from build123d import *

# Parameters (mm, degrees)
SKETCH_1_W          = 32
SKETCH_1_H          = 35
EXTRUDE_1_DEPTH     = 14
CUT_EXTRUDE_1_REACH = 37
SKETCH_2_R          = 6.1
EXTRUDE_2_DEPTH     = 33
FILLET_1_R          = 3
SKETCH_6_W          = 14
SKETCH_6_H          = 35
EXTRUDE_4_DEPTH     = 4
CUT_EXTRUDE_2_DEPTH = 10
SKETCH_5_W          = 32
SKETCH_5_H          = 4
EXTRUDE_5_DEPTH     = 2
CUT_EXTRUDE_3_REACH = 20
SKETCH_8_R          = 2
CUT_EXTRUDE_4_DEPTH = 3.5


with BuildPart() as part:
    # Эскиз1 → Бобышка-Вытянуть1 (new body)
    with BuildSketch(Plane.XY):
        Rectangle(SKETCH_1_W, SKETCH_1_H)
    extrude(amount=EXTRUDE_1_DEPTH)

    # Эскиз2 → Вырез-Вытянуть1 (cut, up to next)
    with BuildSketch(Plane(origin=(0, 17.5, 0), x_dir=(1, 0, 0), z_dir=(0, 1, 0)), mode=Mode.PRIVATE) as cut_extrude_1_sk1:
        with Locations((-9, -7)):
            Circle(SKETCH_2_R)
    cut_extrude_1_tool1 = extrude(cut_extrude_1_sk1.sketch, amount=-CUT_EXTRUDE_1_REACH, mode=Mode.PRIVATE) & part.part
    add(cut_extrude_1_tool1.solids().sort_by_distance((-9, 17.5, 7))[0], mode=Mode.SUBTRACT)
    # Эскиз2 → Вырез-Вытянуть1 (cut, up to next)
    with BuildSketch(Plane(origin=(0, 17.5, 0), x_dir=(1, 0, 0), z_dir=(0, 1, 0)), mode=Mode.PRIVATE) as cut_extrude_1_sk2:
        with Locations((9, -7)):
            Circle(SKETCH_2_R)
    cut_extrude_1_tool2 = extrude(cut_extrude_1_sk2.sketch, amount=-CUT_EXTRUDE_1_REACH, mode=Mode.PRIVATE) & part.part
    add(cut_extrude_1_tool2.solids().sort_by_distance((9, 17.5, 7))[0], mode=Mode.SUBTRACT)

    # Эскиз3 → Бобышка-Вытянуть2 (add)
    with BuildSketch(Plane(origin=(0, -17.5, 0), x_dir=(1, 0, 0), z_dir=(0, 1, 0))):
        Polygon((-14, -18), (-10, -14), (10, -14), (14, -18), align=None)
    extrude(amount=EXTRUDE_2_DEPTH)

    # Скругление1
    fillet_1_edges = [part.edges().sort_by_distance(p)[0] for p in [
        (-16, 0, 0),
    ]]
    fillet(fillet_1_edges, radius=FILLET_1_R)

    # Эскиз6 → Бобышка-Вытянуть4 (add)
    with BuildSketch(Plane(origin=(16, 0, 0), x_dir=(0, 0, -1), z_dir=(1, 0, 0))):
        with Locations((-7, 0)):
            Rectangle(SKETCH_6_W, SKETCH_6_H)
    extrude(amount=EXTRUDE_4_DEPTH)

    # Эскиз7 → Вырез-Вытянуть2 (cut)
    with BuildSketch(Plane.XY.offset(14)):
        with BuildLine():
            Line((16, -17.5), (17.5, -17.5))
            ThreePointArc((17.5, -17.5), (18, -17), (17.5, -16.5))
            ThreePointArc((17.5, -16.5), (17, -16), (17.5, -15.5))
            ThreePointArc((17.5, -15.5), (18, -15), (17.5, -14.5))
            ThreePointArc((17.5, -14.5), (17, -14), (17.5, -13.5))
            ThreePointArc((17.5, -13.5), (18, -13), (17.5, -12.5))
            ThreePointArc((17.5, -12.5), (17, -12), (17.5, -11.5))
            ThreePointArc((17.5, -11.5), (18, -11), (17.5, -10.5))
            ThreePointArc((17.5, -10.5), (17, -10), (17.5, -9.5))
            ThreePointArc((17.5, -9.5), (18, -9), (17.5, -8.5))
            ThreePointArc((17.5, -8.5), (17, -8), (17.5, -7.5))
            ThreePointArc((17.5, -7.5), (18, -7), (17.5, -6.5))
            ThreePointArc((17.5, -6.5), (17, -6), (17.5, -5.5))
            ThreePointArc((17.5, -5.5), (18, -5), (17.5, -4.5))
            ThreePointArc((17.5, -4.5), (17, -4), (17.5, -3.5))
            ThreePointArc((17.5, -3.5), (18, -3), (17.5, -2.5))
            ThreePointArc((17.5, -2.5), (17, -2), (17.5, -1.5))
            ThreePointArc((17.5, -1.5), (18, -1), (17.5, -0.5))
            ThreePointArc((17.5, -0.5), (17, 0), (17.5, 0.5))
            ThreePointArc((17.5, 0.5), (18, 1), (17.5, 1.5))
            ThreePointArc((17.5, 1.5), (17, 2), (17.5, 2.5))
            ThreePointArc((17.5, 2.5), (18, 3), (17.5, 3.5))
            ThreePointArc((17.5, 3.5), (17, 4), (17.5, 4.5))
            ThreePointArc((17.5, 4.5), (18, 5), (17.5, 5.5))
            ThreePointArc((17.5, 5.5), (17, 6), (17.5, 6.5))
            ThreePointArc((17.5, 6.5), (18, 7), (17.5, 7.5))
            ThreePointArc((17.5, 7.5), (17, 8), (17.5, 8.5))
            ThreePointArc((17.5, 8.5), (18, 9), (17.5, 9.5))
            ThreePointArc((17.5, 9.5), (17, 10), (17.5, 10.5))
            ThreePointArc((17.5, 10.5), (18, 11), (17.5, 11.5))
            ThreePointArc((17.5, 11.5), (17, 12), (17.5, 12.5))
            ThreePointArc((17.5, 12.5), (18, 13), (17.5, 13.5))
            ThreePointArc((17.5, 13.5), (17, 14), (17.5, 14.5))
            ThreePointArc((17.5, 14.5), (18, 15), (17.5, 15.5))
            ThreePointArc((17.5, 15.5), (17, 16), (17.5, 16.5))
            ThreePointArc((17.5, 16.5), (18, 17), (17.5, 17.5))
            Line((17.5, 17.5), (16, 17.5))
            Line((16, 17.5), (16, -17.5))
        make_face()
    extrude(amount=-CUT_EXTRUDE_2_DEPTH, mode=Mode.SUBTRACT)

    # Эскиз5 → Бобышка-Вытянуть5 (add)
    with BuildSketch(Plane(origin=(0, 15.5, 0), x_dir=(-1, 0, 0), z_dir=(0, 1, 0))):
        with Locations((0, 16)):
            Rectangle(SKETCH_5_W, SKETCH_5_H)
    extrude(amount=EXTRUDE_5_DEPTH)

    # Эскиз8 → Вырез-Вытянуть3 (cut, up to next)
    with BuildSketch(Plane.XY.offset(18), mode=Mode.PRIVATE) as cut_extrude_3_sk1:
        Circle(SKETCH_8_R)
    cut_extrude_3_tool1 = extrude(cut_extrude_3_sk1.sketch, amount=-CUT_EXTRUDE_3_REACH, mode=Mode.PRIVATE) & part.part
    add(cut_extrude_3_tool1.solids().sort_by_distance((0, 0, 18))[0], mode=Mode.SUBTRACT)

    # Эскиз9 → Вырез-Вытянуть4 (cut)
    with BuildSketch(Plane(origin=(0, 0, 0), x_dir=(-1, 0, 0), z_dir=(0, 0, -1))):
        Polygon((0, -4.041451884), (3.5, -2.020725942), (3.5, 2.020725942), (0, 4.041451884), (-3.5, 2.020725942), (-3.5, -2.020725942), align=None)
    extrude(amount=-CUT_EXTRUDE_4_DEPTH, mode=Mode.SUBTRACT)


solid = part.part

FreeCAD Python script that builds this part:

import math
import FreeCAD as App
import Part
import Sketcher

V = App.Vector
Q = App.Units.Quantity


def edges_at(feature, points):
    """Names of the edges that pass closest to the given points."""
    edges = feature.Shape.Edges
    near = lambda p: min(range(len(edges)), key=lambda i: edges[i].distToShape(Part.Vertex(*p))[0])
    return sorted({f"Edge{near(p) + 1}" for p in points})

doc = App.newDocument("Part")
params = doc.addObject("Spreadsheet::Sheet", "Params")
for row, (alias, value) in enumerate([
    ("sketch1_width", "32 mm"),
    ("sketch1_height", "35 mm"),
    ("pad1_length", "14 mm"),
    ("sketch2_diameter", "12.2 mm"),
    ("sketch3_diameter", "12.2 mm"),
    ("sketch4_width", "28 mm"),
    ("sketch4_width2", "20 mm"),
    ("pad2_length", "33 mm"),
    ("fillet_radius", "3 mm"),
    ("sketch5_width", "35 mm"),
    ("sketch5_height", "14 mm"),
    ("pad3_length", "4 mm"),
    ("sketch6_radius", "0.5 mm"),
    ("sketch6_width", "1.5 mm"),
    ("pocket3_length", "10 mm"),
    ("sketch7_width", "32 mm"),
    ("sketch7_height", "4 mm"),
    ("pad4_length", "2 mm"),
    ("sketch8_diameter", "4 mm"),
    ("pocket5_length", "3.5 mm"),
], start=1):
    params.set(f"A{row}", alias)
    params.set(f"B{row}", "=" + value)
    params.setAlias(f"B{row}", alias)

body = doc.addObject("PartDesign::Body", "Body")

sketch1 = body.newObject("Sketcher::SketchObject", "Sketch")
sketch1.AttachmentSupport = (doc.getObject("XY_Plane"), [""])
sketch1.MapMode = "FlatFace"
sketch1.addGeometry([
    Part.LineSegment(V(-16, 18, 0), V(-16, -18, 0)),
    Part.LineSegment(V(-16, -18, 0), V(16, -18, 0)),
    Part.LineSegment(V(16, -18, 0), V(16, 18, 0)),
    Part.LineSegment(V(16, 18, 0), V(-16, 18, 0)),
], False)
sketch1.addConstraint([
    Sketcher.Constraint("Coincident", 0, 2, 1, 1),
    Sketcher.Constraint("Coincident", 1, 2, 2, 1),
    Sketcher.Constraint("Coincident", 2, 2, 3, 1),
    Sketcher.Constraint("Coincident", 3, 2, 0, 1),
    Sketcher.Constraint("Vertical", 0),
    Sketcher.Constraint("Horizontal", 1),
    Sketcher.Constraint("Vertical", 2),
    Sketcher.Constraint("Horizontal", 3),
    Sketcher.Constraint("Symmetric", 0, 2, 2, 2, -1, 1),
    Sketcher.Constraint("DistanceX", 1, 1, 1, 2, Q("32 mm")),
    Sketcher.Constraint("DistanceY", 0, 2, 0, 1, Q("35 mm")),
])
sketch1.setExpression("Constraints[9]", "Params.sketch1_width")
sketch1.setExpression("Constraints[10]", "Params.sketch1_height")
pad1 = body.newObject("PartDesign::Pad", "Pad")
pad1.Profile = sketch1
pad1.setExpression("Length", "Params.pad1_length")

sketch2 = body.newObject("Sketcher::SketchObject", "Sketch001")
sketch2.AttachmentSupport = (doc.getObject("XZ_Plane"), [""])
sketch2.MapMode = "FlatFace"
sketch2.AttachmentOffset = App.Placement(V(0, 0, -17.5), App.Rotation())
sketch2.addGeometry(Part.Circle(V(-9, 7, 0), V(0, 0, 1), 6), False)
sketch2.addConstraint([
    Sketcher.Constraint("Diameter", 0, Q("12.2 mm")),
    Sketcher.Constraint("DistanceX", 0, 3, -1, 1, Q("9 mm")),
    Sketcher.Constraint("DistanceY", -1, 1, 0, 3, Q("7 mm")),
])
sketch2.setExpression("Constraints[0]", "Params.sketch2_diameter")
pocket1 = body.newObject("PartDesign::Pocket", "Pocket")
pocket1.Profile = sketch2
pocket1.Type = "UpToFirst"
pocket1.Reversed = True

sketch3 = body.newObject("Sketcher::SketchObject", "Sketch002")
sketch3.AttachmentSupport = (doc.getObject("XZ_Plane"), [""])
sketch3.MapMode = "FlatFace"
sketch3.AttachmentOffset = App.Placement(V(0, 0, -17.5), App.Rotation())
sketch3.addGeometry(Part.Circle(V(9, 7, 0), V(0, 0, 1), 6), False)
sketch3.addConstraint([
    Sketcher.Constraint("Diameter", 0, Q("12.2 mm")),
    Sketcher.Constraint("DistanceX", -1, 1, 0, 3, Q("9 mm")),
    Sketcher.Constraint("DistanceY", -1, 1, 0, 3, Q("7 mm")),
])
sketch3.setExpression("Constraints[0]", "Params.sketch3_diameter")
pocket2 = body.newObject("PartDesign::Pocket", "Pocket001")
pocket2.Profile = sketch3
pocket2.Type = "UpToFirst"
pocket2.Reversed = True

sketch4 = body.newObject("Sketcher::SketchObject", "Sketch003")
sketch4.AttachmentSupport = (doc.getObject("XZ_Plane"), [""])
sketch4.MapMode = "FlatFace"
sketch4.AttachmentOffset = App.Placement(V(0, 0, 17.5), App.Rotation())
sketch4.addGeometry([
    Part.LineSegment(V(-10, 14, 0), V(-14, 18, 0)),
    Part.LineSegment(V(-14, 18, 0), V(14, 18, 0)),
    Part.LineSegment(V(14, 18, 0), V(10, 14, 0)),
    Part.LineSegment(V(10, 14, 0), V(-10, 14, 0)),
], False)
sketch4.addConstraint([
    Sketcher.Constraint("Coincident", 0, 2, 1, 1),
    Sketcher.Constraint("Coincident", 1, 2, 2, 1),
    Sketcher.Constraint("Coincident", 2, 2, 3, 1),
    Sketcher.Constraint("Coincident", 3, 2, 0, 1),
    Sketcher.Constraint("Horizontal", 1),
    Sketcher.Constraint("Horizontal", 3),
    Sketcher.Constraint("Perpendicular", 0, 2),
    Sketcher.Constraint("Equal", 0, 2),
    Sketcher.Constraint("DistanceX", 1, 1, 1, 2, Q("28 mm")),
    Sketcher.Constraint("DistanceX", 3, 2, 3, 1, Q("20 mm")),
    Sketcher.Constraint("DistanceX", 0, 2, -1, 1, Q("14 mm")),
    Sketcher.Constraint("DistanceY", -1, 1, 0, 2, Q("18 mm")),
])
sketch4.setExpression("Constraints[8]", "Params.sketch4_width")
sketch4.setExpression("Constraints[9]", "Params.sketch4_width2")
pad2 = body.newObject("PartDesign::Pad", "Pad001")
pad2.Profile = sketch4
pad2.setExpression("Length", "Params.pad2_length")
pad2.Reversed = True
doc.recompute()

fillet = body.newObject("PartDesign::Fillet", "Fillet")
fillet.Base = (pad2, edges_at(pad2, [(-16, 0, 0)]))
fillet.setExpression("Radius", "Params.fillet_radius")

sketch5 = body.newObject("Sketcher::SketchObject", "Sketch004")
sketch5.AttachmentSupport = (doc.getObject("YZ_Plane"), [""])
sketch5.MapMode = "FlatFace"
sketch5.AttachmentOffset = App.Placement(V(0, 0, 16), App.Rotation())
sketch5.addGeometry([
    Part.LineSegment(V(18, 14, 0), V(-18, 14, 0)),
    Part.LineSegment(V(-18, 14, 0), V(-18, 0, 0)),
    Part.LineSegment(V(-18, 0, 0), V(18, 0, 0)),
    Part.LineSegment(V(18, 0, 0), V(18, 14, 0)),
], False)
sketch5.addConstraint([
    Sketcher.Constraint("Coincident", 0, 2, 1, 1),
    Sketcher.Constraint("Coincident", 1, 2, 2, 1),
    Sketcher.Constraint("Coincident", 2, 2, 3, 1),
    Sketcher.Constraint("Coincident", 3, 2, 0, 1),
    Sketcher.Constraint("Horizontal", 0),
    Sketcher.Constraint("Vertical", 1),
    Sketcher.Constraint("Horizontal", 2),
    Sketcher.Constraint("Vertical", 3),
    Sketcher.Constraint("Symmetric", 1, 2, 2, 2, -1, 1),
    Sketcher.Constraint("DistanceX", 0, 2, 0, 1, Q("35 mm")),
    Sketcher.Constraint("DistanceY", 1, 2, 1, 1, Q("14 mm")),
])
sketch5.setExpression("Constraints[9]", "Params.sketch5_width")
sketch5.setExpression("Constraints[10]", "Params.sketch5_height")
pad3 = body.newObject("PartDesign::Pad", "Pad002")
pad3.Profile = sketch5
pad3.setExpression("Length", "Params.pad3_length")

sketch6 = body.newObject("Sketcher::SketchObject", "Sketch005")
sketch6.AttachmentSupport = (doc.getObject("XY_Plane"), [""])
sketch6.MapMode = "FlatFace"
sketch6.AttachmentOffset = App.Placement(V(0, 0, 14), App.Rotation())
sketch6.addGeometry([
    Part.LineSegment(V(16, -17.5, 0), V(17.5, -17.5, 0)),
    Part.ArcOfCircle(Part.Circle(V(17.5, -17, 0), V(0, 0, 1), 0.5), math.radians(-90), math.radians(90)),
    Part.ArcOfCircle(Part.Circle(V(17.5, -16, 0), V(0, 0, 1), 0.5), math.radians(90), math.radians(270)),
    Part.ArcOfCircle(Part.Circle(V(17.5, -15, 0), V(0, 0, 1), 0.5), math.radians(-90), math.radians(90)),
    Part.ArcOfCircle(Part.Circle(V(17.5, -14, 0), V(0, 0, 1), 0.5), math.radians(90), math.radians(270)),
    Part.ArcOfCircle(Part.Circle(V(17.5, -13, 0), V(0, 0, 1), 0.5), math.radians(-90), math.radians(90)),
    Part.ArcOfCircle(Part.Circle(V(17.5, -12, 0), V(0, 0, 1), 0.5), math.radians(90), math.radians(270)),
    Part.ArcOfCircle(Part.Circle(V(17.5, -11, 0), V(0, 0, 1), 0.5), math.radians(-90), math.radians(90)),
    Part.ArcOfCircle(Part.Circle(V(17.5, -10, 0), V(0, 0, 1), 0.5), math.radians(90), math.radians(270)),
    Part.ArcOfCircle(Part.Circle(V(17.5, -9, 0), V(0, 0, 1), 0.5), math.radians(-90), math.radians(90)),
    Part.ArcOfCircle(Part.Circle(V(17.5, -8, 0), V(0, 0, 1), 0.5), math.radians(90), math.radians(270)),
    Part.ArcOfCircle(Part.Circle(V(17.5, -7, 0), V(0, 0, 1), 0.5), math.radians(-90), math.radians(90)),
    Part.ArcOfCircle(Part.Circle(V(17.5, -6, 0), V(0, 0, 1), 0.5), math.radians(90), math.radians(270)),
    Part.ArcOfCircle(Part.Circle(V(17.5, -5, 0), V(0, 0, 1), 0.5), math.radians(-90), math.radians(90)),
    Part.ArcOfCircle(Part.Circle(V(17.5, -4, 0), V(0, 0, 1), 0.5), math.radians(90), math.radians(270)),
    Part.ArcOfCircle(Part.Circle(V(17.5, -3, 0), V(0, 0, 1), 0.5), math.radians(-90), math.radians(90)),
    Part.ArcOfCircle(Part.Circle(V(17.5, -2, 0), V(0, 0, 1), 0.5), math.radians(90), math.radians(270)),
    Part.ArcOfCircle(Part.Circle(V(17.5, -1, 0), V(0, 0, 1), 0.5), math.radians(-90), math.radians(90)),
    Part.ArcOfCircle(Part.Circle(V(17.5, 0, 0), V(0, 0, 1), 0.5), math.radians(90), math.radians(270)),
    Part.ArcOfCircle(Part.Circle(V(17.5, 1, 0), V(0, 0, 1), 0.5), math.radians(-90), math.radians(90)),
    Part.ArcOfCircle(Part.Circle(V(17.5, 2, 0), V(0, 0, 1), 0.5), math.radians(90), math.radians(270)),
    Part.ArcOfCircle(Part.Circle(V(17.5, 3, 0), V(0, 0, 1), 0.5), math.radians(-90), math.radians(90)),
    Part.ArcOfCircle(Part.Circle(V(17.5, 4, 0), V(0, 0, 1), 0.5), math.radians(90), math.radians(270)),
    Part.ArcOfCircle(Part.Circle(V(17.5, 5, 0), V(0, 0, 1), 0.5), math.radians(-90), math.radians(90)),
    Part.ArcOfCircle(Part.Circle(V(17.5, 6, 0), V(0, 0, 1), 0.5), math.radians(90), math.radians(270)),
    Part.ArcOfCircle(Part.Circle(V(17.5, 7, 0), V(0, 0, 1), 0.5), math.radians(-90), math.radians(90)),
    Part.ArcOfCircle(Part.Circle(V(17.5, 8, 0), V(0, 0, 1), 0.5), math.radians(90), math.radians(270)),
    Part.ArcOfCircle(Part.Circle(V(17.5, 9, 0), V(0, 0, 1), 0.5), math.radians(-90), math.radians(90)),
    Part.ArcOfCircle(Part.Circle(V(17.5, 10, 0), V(0, 0, 1), 0.5), math.radians(90), math.radians(270)),
    Part.ArcOfCircle(Part.Circle(V(17.5, 11, 0), V(0, 0, 1), 0.5), math.radians(-90), math.radians(90)),
    Part.ArcOfCircle(Part.Circle(V(17.5, 12, 0), V(0, 0, 1), 0.5), math.radians(90), math.radians(270)),
    Part.ArcOfCircle(Part.Circle(V(17.5, 13, 0), V(0, 0, 1), 0.5), math.radians(-90), math.radians(90)),
    Part.ArcOfCircle(Part.Circle(V(17.5, 14, 0), V(0, 0, 1), 0.5), math.radians(90), math.radians(270)),
    Part.ArcOfCircle(Part.Circle(V(17.5, 15, 0), V(0, 0, 1), 0.5), math.radians(-90), math.radians(90)),
    Part.ArcOfCircle(Part.Circle(V(17.5, 16, 0), V(0, 0, 1), 0.5), math.radians(90), math.radians(270)),
    Part.ArcOfCircle(Part.Circle(V(17.5, 17, 0), V(0, 0, 1), 0.5), math.radians(-90), math.radians(90)),
    Part.LineSegment(V(17.5, 17.5, 0), V(16, 17.5, 0)),
    Part.LineSegment(V(16, 17.5, 0), V(16, -17.5, 0)),
], False)
sketch6.addConstraint([
    Sketcher.Constraint("Tangent", 0, 2, 1, 1),
    Sketcher.Constraint("Tangent", 1, 2, 2, 2),
    Sketcher.Constraint("Tangent", 2, 1, 3, 1),
    Sketcher.Constraint("Tangent", 3, 2, 4, 2),
    Sketcher.Constraint("Tangent", 4, 1, 5, 1),
    Sketcher.Constraint("Tangent", 5, 2, 6, 2),
    Sketcher.Constraint("Tangent", 6, 1, 7, 1),
    Sketcher.Constraint("Tangent", 7, 2, 8, 2),
    Sketcher.Constraint("Tangent", 8, 1, 9, 1),
    Sketcher.Constraint("Tangent", 9, 2, 10, 2),
    Sketcher.Constraint("Tangent", 10, 1, 11, 1),
    Sketcher.Constraint("Tangent", 11, 2, 12, 2),
    Sketcher.Constraint("Tangent", 12, 1, 13, 1),
    Sketcher.Constraint("Tangent", 13, 2, 14, 2),
    Sketcher.Constraint("Tangent", 14, 1, 15, 1),
    Sketcher.Constraint("Tangent", 15, 2, 16, 2),
    Sketcher.Constraint("Tangent", 16, 1, 17, 1),
    Sketcher.Constraint("Tangent", 17, 2, 18, 2),
    Sketcher.Constraint("Tangent", 18, 1, 19, 1),
    Sketcher.Constraint("Tangent", 19, 2, 20, 2),
    Sketcher.Constraint("Tangent", 20, 1, 21, 1),
    Sketcher.Constraint("Tangent", 21, 2, 22, 2),
    Sketcher.Constraint("Tangent", 22, 1, 23, 1),
    Sketcher.Constraint("Tangent", 23, 2, 24, 2),
    Sketcher.Constraint("Tangent", 24, 1, 25, 1),
    Sketcher.Constraint("Tangent", 25, 2, 26, 2),
    Sketcher.Constraint("Tangent", 26, 1, 27, 1),
    Sketcher.Constraint("Tangent", 27, 2, 28, 2),
    Sketcher.Constraint("Tangent", 28, 1, 29, 1),
    Sketcher.Constraint("Tangent", 29, 2, 30, 2),
    Sketcher.Constraint("Tangent", 30, 1, 31, 1),
    Sketcher.Constraint("Tangent", 31, 2, 32, 2),
    Sketcher.Constraint("Tangent", 32, 1, 33, 1),
    Sketcher.Constraint("Tangent", 33, 2, 34, 2),
    Sketcher.Constraint("Tangent", 34, 1, 35, 1),
    Sketcher.Constraint("Tangent", 35, 2, 36, 1),
    Sketcher.Constraint("Coincident", 36, 2, 37, 1),
    Sketcher.Constraint("Coincident", 37, 2, 0, 1),
    Sketcher.Constraint("Horizontal", 0),
    Sketcher.Constraint("Horizontal", 36),
    Sketcher.Constraint("Vertical", 37),
    Sketcher.Constraint("Equal", 1, 2),
    Sketcher.Constraint("Equal", 2, 3),
    Sketcher.Constraint("Equal", 3, 4),
    Sketcher.Constraint("Equal", 4, 5),
    Sketcher.Constraint("Equal", 5, 6),
    Sketcher.Constraint("Equal", 6, 7),
    Sketcher.Constraint("Equal", 7, 8),
    Sketcher.Constraint("Equal", 8, 9),
    Sketcher.Constraint("Equal", 9, 10),
    Sketcher.Constraint("Equal", 10, 11),
    Sketcher.Constraint("Equal", 11, 12),
    Sketcher.Constraint("Equal", 12, 13),
    Sketcher.Constraint("Equal", 13, 14),
    Sketcher.Constraint("Equal", 14, 15),
    Sketcher.Constraint("Equal", 15, 16),
    Sketcher.Constraint("Equal", 16, 17),
    Sketcher.Constraint("Equal", 17, 18),
    Sketcher.Constraint("Equal", 18, 19),
    Sketcher.Constraint("Equal", 19, 20),
    Sketcher.Constraint("Equal", 20, 21),
    Sketcher.Constraint("Equal", 21, 22),
    Sketcher.Constraint("Equal", 22, 23),
    Sketcher.Constraint("Equal", 23, 24),
    Sketcher.Constraint("Equal", 24, 25),
    Sketcher.Constraint("Equal", 25, 26),
    Sketcher.Constraint("Equal", 26, 27),
    Sketcher.Constraint("Equal", 27, 28),
    Sketcher.Constraint("Equal", 28, 29),
    Sketcher.Constraint("Equal", 29, 30),
    Sketcher.Constraint("Equal", 30, 31),
    Sketcher.Constraint("Equal", 31, 32),
    Sketcher.Constraint("Equal", 32, 33),
    Sketcher.Constraint("Equal", 33, 34),
    Sketcher.Constraint("Equal", 34, 35),
    Sketcher.Constraint("Symmetric", 17, 3, 19, 3, -1),
    Sketcher.Constraint("Vertical", 1, 3, 2, 3),
    Sketcher.Constraint("Vertical", 2, 3, 3, 3),
    Sketcher.Constraint("Vertical", 3, 3, 4, 3),
    Sketcher.Constraint("Vertical", 4, 3, 5, 3),
    Sketcher.Constraint("Vertical", 5, 3, 6, 3),
    Sketcher.Constraint("Vertical", 6, 3, 7, 3),
    Sketcher.Constraint("Vertical", 7, 3, 8, 3),
    Sketcher.Constraint("Vertical", 8, 3, 9, 3),
    Sketcher.Constraint("Vertical", 9, 3, 10, 3),
    Sketcher.Constraint("Vertical", 10, 3, 11, 3),
    Sketcher.Constraint("Vertical", 11, 3, 12, 3),
    Sketcher.Constraint("Vertical", 12, 3, 13, 3),
    Sketcher.Constraint("Vertical", 13, 3, 14, 3),
    Sketcher.Constraint("Vertical", 14, 3, 15, 3),
    Sketcher.Constraint("Vertical", 15, 3, 16, 3),
    Sketcher.Constraint("Vertical", 16, 3, 17, 3),
    Sketcher.Constraint("Vertical", 17, 3, 18, 3),
    Sketcher.Constraint("Vertical", 19, 3, 20, 3),
    Sketcher.Constraint("Vertical", 20, 3, 21, 3),
    Sketcher.Constraint("Vertical", 21, 3, 22, 3),
    Sketcher.Constraint("Vertical", 22, 3, 23, 3),
    Sketcher.Constraint("Vertical", 23, 3, 24, 3),
    Sketcher.Constraint("Vertical", 24, 3, 25, 3),
    Sketcher.Constraint("Vertical", 25, 3, 26, 3),
    Sketcher.Constraint("Vertical", 26, 3, 27, 3),
    Sketcher.Constraint("Vertical", 27, 3, 28, 3),
    Sketcher.Constraint("Vertical", 28, 3, 29, 3),
    Sketcher.Constraint("Vertical", 29, 3, 30, 3),
    Sketcher.Constraint("Vertical", 30, 3, 31, 3),
    Sketcher.Constraint("Vertical", 31, 3, 32, 3),
    Sketcher.Constraint("Vertical", 32, 3, 33, 3),
    Sketcher.Constraint("Vertical", 33, 3, 34, 3),
    Sketcher.Constraint("Vertical", 34, 3, 35, 3),
    Sketcher.Constraint("Radius", 1, Q("0.5 mm")),
    Sketcher.Constraint("DistanceX", 0, 1, 0, 2, Q("1.5 mm")),
    Sketcher.Constraint("DistanceX", -1, 1, 36, 2, Q("16 mm")),
])
sketch6.setExpression("Constraints[109]", "Params.sketch6_radius")
sketch6.setExpression("Constraints[110]", "Params.sketch6_width")
pocket3 = body.newObject("PartDesign::Pocket", "Pocket002")
pocket3.Profile = sketch6
pocket3.setExpression("Length", "Params.pocket3_length")

sketch7 = body.newObject("Sketcher::SketchObject", "Sketch006")
sketch7.AttachmentSupport = (doc.getObject("XZ_Plane"), [""])
sketch7.MapMode = "FlatFace"
sketch7.AttachmentOffset = App.Placement(V(0, 0, -15.5), App.Rotation())
sketch7.addGeometry([
    Part.LineSegment(V(16, 18, 0), V(16, 14, 0)),
    Part.LineSegment(V(16, 14, 0), V(-16, 14, 0)),
    Part.LineSegment(V(-16, 14, 0), V(-16, 18, 0)),
    Part.LineSegment(V(-16, 18, 0), V(16, 18, 0)),
], False)
sketch7.addConstraint([
    Sketcher.Constraint("Coincident", 0, 2, 1, 1),
    Sketcher.Constraint("Coincident", 1, 2, 2, 1),
    Sketcher.Constraint("Coincident", 2, 2, 3, 1),
    Sketcher.Constraint("Coincident", 3, 2, 0, 1),
    Sketcher.Constraint("Vertical", 0),
    Sketcher.Constraint("Horizontal", 1),
    Sketcher.Constraint("Vertical", 2),
    Sketcher.Constraint("Horizontal", 3),
    Sketcher.Constraint("DistanceX", 1, 2, 1, 1, Q("32 mm")),
    Sketcher.Constraint("DistanceY", 0, 2, 0, 1, Q("4 mm")),
    Sketcher.Constraint("DistanceX", -1, 1, 0, 2, Q("16 mm")),
    Sketcher.Constraint("DistanceY", -1, 1, 0, 2, Q("14 mm")),
])
sketch7.setExpression("Constraints[8]", "Params.sketch7_width")
sketch7.setExpression("Constraints[9]", "Params.sketch7_height")
pad4 = body.newObject("PartDesign::Pad", "Pad003")
pad4.Profile = sketch7
pad4.setExpression("Length", "Params.pad4_length")
pad4.Reversed = True

sketch8 = body.newObject("Sketcher::SketchObject", "Sketch007")
sketch8.AttachmentSupport = (doc.getObject("XY_Plane"), [""])
sketch8.MapMode = "FlatFace"
sketch8.AttachmentOffset = App.Placement(V(0, 0, 18), App.Rotation())
sketch8.addGeometry(Part.Circle(V(0, 0, 0), V(0, 0, 1), 2), False)
sketch8.addConstraint([
    Sketcher.Constraint("Coincident", 0, 3, -1, 1),
    Sketcher.Constraint("Diameter", 0, Q("4 mm")),
])
sketch8.setExpression("Constraints[1]", "Params.sketch8_diameter")
pocket4 = body.newObject("PartDesign::Pocket", "Pocket003")
pocket4.Profile = sketch8
pocket4.Type = "UpToFirst"

sketch9 = body.newObject("Sketcher::SketchObject", "Sketch008")
sketch9.AttachmentSupport = (doc.getObject("XY_Plane"), [""])
sketch9.MapMode = "FlatFace"
sketch9.addGeometry([
    Part.LineSegment(V(0, -4, 0), V(-3.5, -2, 0)),
    Part.LineSegment(V(-3.5, -2, 0), V(-3.5, 2, 0)),
    Part.LineSegment(V(-3.5, 2, 0), V(0, 4, 0)),
    Part.LineSegment(V(0, 4, 0), V(3.5, 2, 0)),
    Part.LineSegment(V(3.5, 2, 0), V(3.5, -2, 0)),
    Part.LineSegment(V(3.5, -2, 0), V(0, -4, 0)),
], False)
sketch9.addConstraint([
    Sketcher.Constraint("Coincident", 0, 2, 1, 1),
    Sketcher.Constraint("Coincident", 1, 2, 2, 1),
    Sketcher.Constraint("Coincident", 2, 2, 3, 1),
    Sketcher.Constraint("Coincident", 3, 2, 4, 1),
    Sketcher.Constraint("Coincident", 4, 2, 5, 1),
    Sketcher.Constraint("Coincident", 5, 2, 0, 1),
    Sketcher.Constraint("Vertical", 1),
    Sketcher.Constraint("Vertical", 4),
    Sketcher.Constraint("Symmetric", 0, 2, 3, 2, -1, 1),
    Sketcher.Constraint("Symmetric", 2, 2, 5, 2, -1, 1),
    Sketcher.Constraint("PointOnObject", 2, 2, -2),
    Sketcher.Constraint("Parallel", 2, 5),
    Sketcher.Constraint("Horizontal", 1, 2, 3, 2),
    Sketcher.Constraint("Angle", 0, Q("150 deg")),
    Sketcher.Constraint("DistanceX", 1, 2, 3, 2, Q("7 mm")),
    Sketcher.Constraint("DistanceY", 1, 1, 1, 2, Q("4.041452 mm")),
])
pocket5 = body.newObject("PartDesign::Pocket", "Pocket004")
pocket5.Profile = sketch9
pocket5.setExpression("Length", "Params.pocket5_length")
pocket5.Reversed = True

doc.recompute()
